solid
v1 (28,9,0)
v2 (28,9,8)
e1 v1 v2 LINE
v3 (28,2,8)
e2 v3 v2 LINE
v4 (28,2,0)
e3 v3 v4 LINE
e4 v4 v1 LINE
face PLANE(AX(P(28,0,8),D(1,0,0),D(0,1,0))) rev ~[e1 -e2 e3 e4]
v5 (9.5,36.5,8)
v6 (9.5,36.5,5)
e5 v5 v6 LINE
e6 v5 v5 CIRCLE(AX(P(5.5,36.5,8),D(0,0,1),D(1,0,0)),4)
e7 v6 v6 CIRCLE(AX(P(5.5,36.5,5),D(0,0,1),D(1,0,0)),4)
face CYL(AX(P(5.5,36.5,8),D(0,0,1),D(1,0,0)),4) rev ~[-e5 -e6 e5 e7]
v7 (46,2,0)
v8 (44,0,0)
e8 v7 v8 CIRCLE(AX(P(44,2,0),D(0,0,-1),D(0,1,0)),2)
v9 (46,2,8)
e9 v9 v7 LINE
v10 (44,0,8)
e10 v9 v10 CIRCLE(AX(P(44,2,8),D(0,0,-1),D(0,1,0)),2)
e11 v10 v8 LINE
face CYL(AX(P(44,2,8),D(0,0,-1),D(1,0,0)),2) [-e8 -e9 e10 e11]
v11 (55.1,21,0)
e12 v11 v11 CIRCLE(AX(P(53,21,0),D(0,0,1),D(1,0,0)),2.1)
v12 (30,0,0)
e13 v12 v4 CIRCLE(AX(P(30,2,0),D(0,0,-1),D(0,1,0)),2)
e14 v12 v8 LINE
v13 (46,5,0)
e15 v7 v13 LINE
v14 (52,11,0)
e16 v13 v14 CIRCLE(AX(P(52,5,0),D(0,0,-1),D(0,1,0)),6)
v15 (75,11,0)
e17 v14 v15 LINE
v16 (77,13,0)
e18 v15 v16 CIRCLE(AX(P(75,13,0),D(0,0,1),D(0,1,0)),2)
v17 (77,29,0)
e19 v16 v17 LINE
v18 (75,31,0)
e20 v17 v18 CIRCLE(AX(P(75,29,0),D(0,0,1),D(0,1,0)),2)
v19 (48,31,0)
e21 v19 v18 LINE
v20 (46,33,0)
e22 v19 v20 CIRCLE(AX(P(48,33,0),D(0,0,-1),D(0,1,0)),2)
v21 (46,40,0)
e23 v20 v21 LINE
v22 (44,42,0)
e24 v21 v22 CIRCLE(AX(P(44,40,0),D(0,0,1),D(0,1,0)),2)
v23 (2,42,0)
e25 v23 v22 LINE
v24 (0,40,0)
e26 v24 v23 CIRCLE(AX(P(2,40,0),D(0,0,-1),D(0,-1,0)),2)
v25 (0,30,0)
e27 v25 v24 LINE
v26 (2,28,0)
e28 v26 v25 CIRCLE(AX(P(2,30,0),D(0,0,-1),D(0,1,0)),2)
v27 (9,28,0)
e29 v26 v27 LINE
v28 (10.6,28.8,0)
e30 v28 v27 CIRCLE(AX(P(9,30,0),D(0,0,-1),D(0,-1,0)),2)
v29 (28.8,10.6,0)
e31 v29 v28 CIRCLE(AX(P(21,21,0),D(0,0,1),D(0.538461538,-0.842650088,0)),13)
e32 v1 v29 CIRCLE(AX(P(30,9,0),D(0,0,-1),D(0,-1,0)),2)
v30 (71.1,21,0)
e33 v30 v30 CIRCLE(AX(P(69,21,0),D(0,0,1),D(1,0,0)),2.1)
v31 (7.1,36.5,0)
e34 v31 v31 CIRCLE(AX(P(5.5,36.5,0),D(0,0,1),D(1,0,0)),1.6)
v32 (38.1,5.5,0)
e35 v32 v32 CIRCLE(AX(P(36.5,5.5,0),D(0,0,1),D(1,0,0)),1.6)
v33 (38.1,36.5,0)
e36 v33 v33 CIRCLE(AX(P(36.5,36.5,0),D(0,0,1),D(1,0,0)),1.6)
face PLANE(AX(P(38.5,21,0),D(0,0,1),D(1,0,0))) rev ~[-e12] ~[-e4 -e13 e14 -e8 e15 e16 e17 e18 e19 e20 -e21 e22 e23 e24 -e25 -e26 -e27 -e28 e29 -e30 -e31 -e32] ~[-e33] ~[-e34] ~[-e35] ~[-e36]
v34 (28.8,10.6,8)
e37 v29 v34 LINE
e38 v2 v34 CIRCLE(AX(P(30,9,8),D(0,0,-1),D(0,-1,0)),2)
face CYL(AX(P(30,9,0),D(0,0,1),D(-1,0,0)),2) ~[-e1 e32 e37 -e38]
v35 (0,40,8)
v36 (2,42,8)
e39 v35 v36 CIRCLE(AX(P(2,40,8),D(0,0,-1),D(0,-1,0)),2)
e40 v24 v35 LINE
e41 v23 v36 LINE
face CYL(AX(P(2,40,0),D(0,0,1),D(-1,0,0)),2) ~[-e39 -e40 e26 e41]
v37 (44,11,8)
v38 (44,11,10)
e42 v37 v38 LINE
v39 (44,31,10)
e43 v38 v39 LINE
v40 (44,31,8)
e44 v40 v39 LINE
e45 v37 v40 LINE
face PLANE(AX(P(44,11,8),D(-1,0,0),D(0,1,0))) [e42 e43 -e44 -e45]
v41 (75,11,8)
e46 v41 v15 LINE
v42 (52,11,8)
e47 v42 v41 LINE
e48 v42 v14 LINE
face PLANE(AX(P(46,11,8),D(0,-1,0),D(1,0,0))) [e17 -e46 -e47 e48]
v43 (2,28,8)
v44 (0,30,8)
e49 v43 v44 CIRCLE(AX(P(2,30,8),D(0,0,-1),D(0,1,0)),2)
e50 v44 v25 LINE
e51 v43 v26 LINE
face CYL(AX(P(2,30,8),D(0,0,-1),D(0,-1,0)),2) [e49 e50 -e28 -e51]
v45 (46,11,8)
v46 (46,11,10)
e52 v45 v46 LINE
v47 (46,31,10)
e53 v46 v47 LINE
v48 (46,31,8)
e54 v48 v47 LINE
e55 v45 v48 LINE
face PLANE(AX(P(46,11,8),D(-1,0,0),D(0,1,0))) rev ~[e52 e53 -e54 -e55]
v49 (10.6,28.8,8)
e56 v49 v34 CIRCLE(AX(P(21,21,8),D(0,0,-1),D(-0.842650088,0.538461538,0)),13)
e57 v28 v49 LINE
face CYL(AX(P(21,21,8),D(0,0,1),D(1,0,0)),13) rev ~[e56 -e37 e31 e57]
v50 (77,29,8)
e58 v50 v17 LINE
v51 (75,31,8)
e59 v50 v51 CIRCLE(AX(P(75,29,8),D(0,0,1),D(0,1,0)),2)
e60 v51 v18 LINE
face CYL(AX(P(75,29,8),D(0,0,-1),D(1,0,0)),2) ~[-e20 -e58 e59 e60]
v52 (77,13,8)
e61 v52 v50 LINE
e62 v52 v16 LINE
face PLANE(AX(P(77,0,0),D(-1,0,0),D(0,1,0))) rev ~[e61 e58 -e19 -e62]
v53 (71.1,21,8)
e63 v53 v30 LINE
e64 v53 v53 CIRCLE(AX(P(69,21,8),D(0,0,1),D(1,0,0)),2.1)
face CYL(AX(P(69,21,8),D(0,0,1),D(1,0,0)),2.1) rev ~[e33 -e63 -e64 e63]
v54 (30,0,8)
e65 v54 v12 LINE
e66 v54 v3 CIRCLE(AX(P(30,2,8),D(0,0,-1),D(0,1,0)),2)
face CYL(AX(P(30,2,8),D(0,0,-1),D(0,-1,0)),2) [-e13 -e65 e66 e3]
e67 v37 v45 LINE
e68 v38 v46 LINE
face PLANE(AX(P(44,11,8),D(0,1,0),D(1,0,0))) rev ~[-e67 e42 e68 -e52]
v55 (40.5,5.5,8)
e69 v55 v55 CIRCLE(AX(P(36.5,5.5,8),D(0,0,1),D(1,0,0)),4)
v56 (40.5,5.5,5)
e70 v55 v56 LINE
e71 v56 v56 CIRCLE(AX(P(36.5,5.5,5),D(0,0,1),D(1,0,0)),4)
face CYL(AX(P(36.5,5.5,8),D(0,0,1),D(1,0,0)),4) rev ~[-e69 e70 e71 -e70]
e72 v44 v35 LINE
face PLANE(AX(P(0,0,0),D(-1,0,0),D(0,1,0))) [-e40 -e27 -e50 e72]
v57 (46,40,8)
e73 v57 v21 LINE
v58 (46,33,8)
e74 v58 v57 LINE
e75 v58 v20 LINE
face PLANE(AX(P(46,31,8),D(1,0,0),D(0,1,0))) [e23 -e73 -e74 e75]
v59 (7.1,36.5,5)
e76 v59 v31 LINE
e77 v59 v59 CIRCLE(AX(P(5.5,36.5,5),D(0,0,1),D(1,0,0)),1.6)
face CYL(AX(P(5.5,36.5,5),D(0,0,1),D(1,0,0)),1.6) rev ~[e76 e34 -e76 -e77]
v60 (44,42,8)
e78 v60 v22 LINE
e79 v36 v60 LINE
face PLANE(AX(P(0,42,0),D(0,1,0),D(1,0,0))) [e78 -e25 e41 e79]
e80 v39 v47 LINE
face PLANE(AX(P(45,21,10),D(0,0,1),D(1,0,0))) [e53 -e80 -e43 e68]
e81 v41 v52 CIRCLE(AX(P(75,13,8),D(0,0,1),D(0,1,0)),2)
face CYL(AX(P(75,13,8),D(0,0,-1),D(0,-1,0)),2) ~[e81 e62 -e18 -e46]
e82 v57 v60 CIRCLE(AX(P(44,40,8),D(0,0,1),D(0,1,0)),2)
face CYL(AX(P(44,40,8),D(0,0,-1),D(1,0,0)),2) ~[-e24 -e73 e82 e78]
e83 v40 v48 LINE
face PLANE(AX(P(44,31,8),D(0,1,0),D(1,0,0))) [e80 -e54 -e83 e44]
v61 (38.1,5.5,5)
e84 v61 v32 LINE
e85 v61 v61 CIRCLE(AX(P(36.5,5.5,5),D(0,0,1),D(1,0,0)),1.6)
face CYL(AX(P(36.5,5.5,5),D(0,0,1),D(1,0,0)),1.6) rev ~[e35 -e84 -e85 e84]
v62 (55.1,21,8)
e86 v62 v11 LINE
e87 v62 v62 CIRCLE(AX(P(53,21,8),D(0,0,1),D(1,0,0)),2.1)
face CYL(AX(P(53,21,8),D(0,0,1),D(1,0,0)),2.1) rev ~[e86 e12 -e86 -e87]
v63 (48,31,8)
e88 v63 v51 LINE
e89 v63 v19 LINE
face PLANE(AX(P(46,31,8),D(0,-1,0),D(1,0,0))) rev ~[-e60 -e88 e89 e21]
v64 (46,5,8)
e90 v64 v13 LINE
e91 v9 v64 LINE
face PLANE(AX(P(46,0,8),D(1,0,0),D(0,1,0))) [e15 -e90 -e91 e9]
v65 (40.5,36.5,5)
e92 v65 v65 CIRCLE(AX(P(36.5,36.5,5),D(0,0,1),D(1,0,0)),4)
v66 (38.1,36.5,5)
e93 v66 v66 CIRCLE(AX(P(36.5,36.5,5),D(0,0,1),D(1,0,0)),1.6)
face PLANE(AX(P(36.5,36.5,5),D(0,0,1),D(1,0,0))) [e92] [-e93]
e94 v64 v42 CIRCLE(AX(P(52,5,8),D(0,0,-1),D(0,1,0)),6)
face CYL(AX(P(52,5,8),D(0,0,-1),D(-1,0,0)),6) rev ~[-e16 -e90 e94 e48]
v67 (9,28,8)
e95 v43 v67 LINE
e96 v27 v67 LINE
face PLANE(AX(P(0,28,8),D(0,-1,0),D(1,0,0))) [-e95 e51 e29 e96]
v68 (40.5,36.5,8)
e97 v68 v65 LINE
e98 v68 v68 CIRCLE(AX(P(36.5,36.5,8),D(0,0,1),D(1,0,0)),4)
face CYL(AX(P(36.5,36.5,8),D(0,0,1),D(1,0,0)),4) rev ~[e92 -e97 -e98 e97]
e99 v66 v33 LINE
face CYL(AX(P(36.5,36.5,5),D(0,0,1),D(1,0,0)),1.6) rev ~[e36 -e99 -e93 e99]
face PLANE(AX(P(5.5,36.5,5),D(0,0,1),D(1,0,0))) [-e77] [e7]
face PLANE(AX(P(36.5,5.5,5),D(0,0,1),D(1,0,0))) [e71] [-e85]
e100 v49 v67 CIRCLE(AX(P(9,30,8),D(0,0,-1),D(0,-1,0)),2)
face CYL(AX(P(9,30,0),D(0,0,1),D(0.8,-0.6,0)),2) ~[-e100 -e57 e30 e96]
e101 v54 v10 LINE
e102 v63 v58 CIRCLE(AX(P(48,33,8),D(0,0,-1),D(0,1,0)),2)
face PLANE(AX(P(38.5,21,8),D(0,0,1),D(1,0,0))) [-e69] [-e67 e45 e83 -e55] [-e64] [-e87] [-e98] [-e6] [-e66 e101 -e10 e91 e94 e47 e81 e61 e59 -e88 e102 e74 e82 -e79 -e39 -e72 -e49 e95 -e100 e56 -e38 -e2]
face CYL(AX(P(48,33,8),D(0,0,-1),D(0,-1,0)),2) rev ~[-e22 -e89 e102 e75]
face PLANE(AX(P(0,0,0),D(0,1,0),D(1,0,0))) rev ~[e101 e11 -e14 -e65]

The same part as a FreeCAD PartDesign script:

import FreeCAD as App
import Part
import Sketcher
from FreeCAD import Vector
Q = App.Units.Quantity


def edges_at(feature, points):
    """Names of the edges that pass closest to the given points."""
    edges = feature.Shape.Edges
    near = lambda p: min(range(len(edges)), key=lambda i: edges[i].distToShape(Part.Vertex(*p))[0])
    return sorted({f"Edge{near(p) + 1}" for p in points})


def add_polygon(sketch, points):
    """Adds a closed chain of lines whose ends are joined by coincident constraints."""
    first, n = sketch.GeometryCount, len(points)
    for a, b in zip(points, points[1:] + points[:1]):
        sketch.addGeometry(Part.LineSegment(App.Vector(*a, 0), App.Vector(*b, 0)), False)
    for i in range(n):
        sketch.addConstraint(Sketcher.Constraint("Coincident", first + i, 2, first + (i + 1) % n, 1))

doc = App.newDocument("Part")
body = doc.addObject("PartDesign::Body", "Body")

# Sketch on XY plane
sketch1 = body.newObject("Sketcher::SketchObject", "Sketch")
sketch1.AttachmentSupport = (doc.getObject("XY_Plane"), [""])
sketch1.MapMode = "FlatFace"
add_polygon(sketch1, [(0, 42), (0, 0), (77, 0), (77, 42)])  # lines 0-3
sketch1.addConstraint([
    Sketcher.Constraint("Vertical", 0),
    Sketcher.Constraint("Horizontal", 1),
    Sketcher.Constraint("Vertical", 2),
    Sketcher.Constraint("Horizontal", 3),
    Sketcher.Constraint("Coincident", 0, 2, -1, 1),
    Sketcher.Constraint("DistanceX", 1, 1, 1, 2, Q("77 mm")),
    Sketcher.Constraint("DistanceY", 0, 2, 0, 1, Q("42 mm")),
])
pad1 = body.newObject("PartDesign::Pad", "Pad")
pad1.Profile = sketch1
pad1.Length = 8

# Sketch on XY plane
sketch2 = body.newObject("Sketcher::SketchObject", "Sketch001")
sketch2.AttachmentSupport = (doc.getObject("XY_Plane"), [""])
sketch2.MapMode = "FlatFace"
sketch2.AttachmentOffset = App.Placement(Vector(0, 0, 8), App.Rotation())
sketch2.addGeometry([
    Part.Circle(Vector(5.5, 36.5, 0), Vector(0, 0, 1), 4),
    Part.Circle(Vector(36.5, 36.5, 0), Vector(0, 0, 1), 4),
    Part.Circle(Vector(36.5, 5.5, 0), Vector(0, 0, 1), 4),
], False)
sketch2.addConstraint([
    Sketcher.Constraint("Equal", 0, 1),
    Sketcher.Constraint("Equal", 1, 2),
    Sketcher.Constraint("Horizontal", 0, 3, 1, 3),
    Sketcher.Constraint("Vertical", 1, 3, 2, 3),
    Sketcher.Constraint("Diameter", 0, Q("8 mm")),
    Sketcher.Constraint("DistanceX", 0, 3, 1, 3, Q("31 mm")),
    Sketcher.Constraint("DistanceY", 2, 3, 1, 3, Q("31 mm")),
    Sketcher.Constraint("DistanceX", -1, 1, 0, 3, Q("5.5 mm")),
    Sketcher.Constraint("DistanceY", -1, 1, 0, 3, Q("36.5 mm")),
])
pocket1 = body.newObject("PartDesign::Pocket", "Pocket")
pocket1.Profile = sketch2
pocket1.Length = 3

# Sketch on XY plane
sketch3 = body.newObject("Sketcher::SketchObject", "Sketch002")
sketch3.AttachmentSupport = (doc.getObject("XY_Plane"), [""])
sketch3.MapMode = "FlatFace"
sketch3.AttachmentOffset = App.Placement(Vector(0, 0, 8), App.Rotation())
sketch3.addGeometry(Part.Circle(Vector(21, 21, 0), Vector(0, 0, 1), 13), False)
sketch3.addConstraint([
    Sketcher.Constraint("Diameter", 0, Q("26 mm")),
    Sketcher.Constraint("DistanceX", -1, 1, 0, 3, Q("21 mm")),
    Sketcher.Constraint("DistanceY", -1, 1, 0, 3, Q("21 mm")),
])
pocket2 = body.newObject("PartDesign::Pocket", "Pocket001")
pocket2.Profile = sketch3
pocket2.Type = "ThroughAll"

# Sketch on XY plane
sketch4 = body.newObject("Sketcher::SketchObject", "Sketch003")
sketch4.AttachmentSupport = (doc.getObject("XY_Plane"), [""])
sketch4.MapMode = "FlatFace"
sketch4.AttachmentOffset = App.Placement(Vector(0, 0, 8), App.Rotation())
add_polygon(sketch4, [(0, 28), (0, 0), (28, 0), (28, 28)])  # lines 0-3
sketch4.addConstraint([
    Sketcher.Constraint("Vertical", 0),
    Sketcher.Constraint("Horizontal", 1),
    Sketcher.Constraint("Vertical", 2),
    Sketcher.Constraint("Horizontal", 3),
    Sketcher.Constraint("Coincident", 0, 2, -1, 1),
    Sketcher.Constraint("Equal", 3, 0),
    Sketcher.Constraint("DistanceX", 1, 1, 1, 2, Q("28 mm")),
])
pocket3 = body.newObject("PartDesign::Pocket", "Pocket002")
pocket3.Profile = sketch4
pocket3.Type = "ThroughAll"

# Sketch on XY plane
sketch5 = body.newObject("Sketcher::SketchObject", "Sketch004")
sketch5.AttachmentSupport = (doc.getObject("XY_Plane"), [""])
sketch5.MapMode = "FlatFace"
sketch5.AttachmentOffset = App.Placement(Vector(0, 0, 5), App.Rotation())
sketch5.addGeometry([
    Part.Circle(Vector(5.5, 36.5, 0), Vector(0, 0, 1), 1.6),
    Part.Circle(Vector(36.5, 36.5, 0), Vector(0, 0, 1), 1.6),
    Part.Circle(Vector(36.5, 5.5, 0), Vector(0, 0, 1), 1.6),
], False)
sketch5.addConstraint([
    Sketcher.Constraint("Equal", 0, 1),
    Sketcher.Constraint("Equal", 1, 2),
    Sketcher.Constraint("Horizontal", 0, 3, 1, 3),
    Sketcher.Constraint("Vertical", 1, 3, 2, 3),
    Sketcher.Constraint("Diameter", 0, Q("3.2 mm")),
    Sketcher.Constraint("DistanceX", 0, 3, 1, 3, Q("31 mm")),
    Sketcher.Constraint("DistanceY", 2, 3, 1, 3, Q("31 mm")),
    Sketcher.Constraint("DistanceX", -1, 1, 0, 3, Q("5.5 mm")),
    Sketcher.Constraint("DistanceY", -1, 1, 0, 3, Q("36.5 mm")),
])
pocket4 = body.newObject("PartDesign::Pocket", "Pocket003")
pocket4.Profile = sketch5
pocket4.Type = "ThroughAll"

# Sketch on XY plane
sketch6 = body.newObject("Sketcher::SketchObject", "Sketch005")
sketch6.AttachmentSupport = (doc.getObject("XY_Plane"), [""])
sketch6.MapMode = "FlatFace"
sketch6.AttachmentOffset = App.Placement(Vector(0, 0, 8), App.Rotation())
add_polygon(sketch6, [(46, 11), (46, 0), (77, 0), (77, 11)])  # lines 0-3
add_polygon(sketch6, [(46, 42), (46, 31), (77, 31), (77, 42)])  # lines 4-7
sketch6.addConstraint([
    Sketcher.Constraint("Vertical", 0),
    Sketcher.Constraint("Horizontal", 1),
    Sketcher.Constraint("Vertical", 2),
    Sketcher.Constraint("Horizontal", 3),
    Sketcher.Constraint("Vertical", 4),
    Sketcher.Constraint("Horizontal", 5),
    Sketcher.Constraint("Vertical", 6),
    Sketcher.Constraint("Horizontal", 7),
    Sketcher.Constraint("PointOnObject", 0, 2, -1),
    Sketcher.Constraint("Vertical", 3, 2, 4, 2),
    Sketcher.Constraint("Vertical", 2, 2, 5, 2),
    Sketcher.Constraint("Equal", 2, 4),
    Sketcher.Constraint("DistanceX", 1, 1, 1, 2, Q("31 mm")),
    Sketcher.Constraint("DistanceY", 0, 2, 0, 1, Q("11 mm")),
    Sketcher.Constraint("DistanceX", -1, 1, 0, 2, Q("46 mm")),
    Sketcher.Constraint("DistanceY", -1, 1, 4, 2, Q("31 mm")),
])
pocket5 = body.newObject("PartDesign::Pocket", "Pocket004")
pocket5.Profile = sketch6
pocket5.Type = "ThroughAll"

# Sketch on XY plane
sketch7 = body.newObject("Sketcher::SketchObject", "Sketch006")
sketch7.AttachmentSupport = (doc.getObject("XY_Plane"), [""])
sketch7.MapMode = "FlatFace"
sketch7.AttachmentOffset = App.Placement(Vector(0, 0, 8), App.Rotation())
sketch7.addGeometry([
    Part.Circle(Vector(53, 21, 0), Vector(0, 0, 1), 2.1),
    Part.Circle(Vector(69, 21, 0), Vector(0, 0, 1), 2.1),
], False)
sketch7.addConstraint([
    Sketcher.Constraint("Equal", 0, 1),
    Sketcher.Constraint("Horizontal", 0, 3, 1, 3),
    Sketcher.Constraint("Diameter", 0, Q("4.2 mm")),
    Sketcher.Constraint("DistanceX", -1, 1, 0, 3, Q("53 mm")),
    Sketcher.Constraint("DistanceY", -1, 1, 0, 3, Q("21 mm")),
    Sketcher.Constraint("DistanceX", -1, 1, 1, 3, Q("69 mm")),
])
pocket6 = body.newObject("PartDesign::Pocket", "Pocket005")
pocket6.Profile = sketch7
pocket6.Type = "ThroughAll"
doc.recompute()

fillet = body.newObject("PartDesign::Fillet", "Fillet")
fillet.Base = (pocket6, edges_at(pocket6, [(46, 11, 4)]))
fillet.Radius = 6
doc.recompute()

fillet2 = body.newObject("PartDesign::Fillet", "Fillet001")
fillet2.Base = (fillet, edges_at(fillet, [
    (28, 10.046, 4),
    (10.046, 28, 4),
    (0, 28, 4),
    (28, 0, 4),
    (77, 11, 4),
    (46, 0, 4),
    (0, 42, 4),
    (77, 31, 4),
    (46, 31, 4),
    (46, 42, 4),
]))
fillet2.Radius = 2

# Sketch on XY plane
sketch8 = body.newObject("Sketcher::SketchObject", "Sketch007")
sketch8.AttachmentSupport = (doc.getObject("XY_Plane"), [""])
sketch8.MapMode = "FlatFace"
sketch8.AttachmentOffset = App.Placement(Vector(0, 0, 8), App.Rotation())
add_polygon(sketch8, [(44, 31), (44, 11), (46, 11), (46, 31)])  # lines 0-3
sketch8.addConstraint([
    Sketcher.Constraint("Vertical", 0),
    Sketcher.Constraint("Horizontal", 1),
    Sketcher.Constraint("Vertical", 2),
    Sketcher.Constraint("Horizontal", 3),
    Sketcher.Constraint("DistanceX", 1, 1, 1, 2, Q("2 mm")),
    Sketcher.Constraint("DistanceY", 0, 2, 0, 1, Q("20 mm")),
    Sketcher.Constraint("DistanceX", -1, 1, 0, 2, Q("44 mm")),
    Sketcher.Constraint("DistanceY", -1, 1, 0, 2, Q("11 mm")),
])
pad2 = body.newObject("PartDesign::Pad", "Pad001")
pad2.Profile = sketch8
pad2.Length = 2

doc.recompute()
